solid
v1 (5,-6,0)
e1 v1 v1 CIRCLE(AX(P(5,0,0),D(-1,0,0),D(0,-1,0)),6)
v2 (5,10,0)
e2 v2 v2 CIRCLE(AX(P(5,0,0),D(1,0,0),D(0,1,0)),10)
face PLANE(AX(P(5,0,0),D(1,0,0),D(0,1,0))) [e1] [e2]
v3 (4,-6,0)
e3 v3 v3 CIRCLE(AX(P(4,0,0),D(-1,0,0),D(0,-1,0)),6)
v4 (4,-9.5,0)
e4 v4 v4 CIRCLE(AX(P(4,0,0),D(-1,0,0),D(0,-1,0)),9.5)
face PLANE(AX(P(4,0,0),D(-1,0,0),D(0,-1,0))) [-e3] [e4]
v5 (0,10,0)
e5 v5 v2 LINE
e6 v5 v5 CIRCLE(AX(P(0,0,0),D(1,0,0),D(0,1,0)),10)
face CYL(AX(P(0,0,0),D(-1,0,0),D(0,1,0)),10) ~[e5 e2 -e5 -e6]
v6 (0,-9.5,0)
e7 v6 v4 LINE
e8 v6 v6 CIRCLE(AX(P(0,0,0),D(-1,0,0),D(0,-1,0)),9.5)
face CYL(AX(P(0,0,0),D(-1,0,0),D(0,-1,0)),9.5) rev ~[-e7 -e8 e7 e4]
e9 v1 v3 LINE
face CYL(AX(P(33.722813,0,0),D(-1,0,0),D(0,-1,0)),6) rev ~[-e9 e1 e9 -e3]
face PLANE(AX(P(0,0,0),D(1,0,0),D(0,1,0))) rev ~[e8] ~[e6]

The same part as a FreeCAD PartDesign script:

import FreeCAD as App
import Part
import Sketcher
from FreeCAD import Vector

doc = App.newDocument("Part")
body = doc.addObject("PartDesign::Body", "Body")

# Sketch on YZ plane
sketch1 = body.newObject("Sketcher::SketchObject", "Sketch")
sketch1.AttachmentSupport = (doc.getObject("YZ_Plane"), [""])
sketch1.MapMode = "FlatFace"
sketch1.addGeometry(Part.Circle(Vector(0, 0, 0), Vector(0, 0, 1), 10), False)
sketch1.addConstraint([
    Sketcher.Constraint("Coincident", 0, 3, -1, 1),
    Sketcher.Constraint("Diameter", 0, 20.0),
])
pad1 = body.newObject("PartDesign::Pad", "Pad")
pad1.Profile = sketch1
pad1.Length = 5

# Sketch on YZ plane
sketch2 = body.newObject("Sketcher::SketchObject", "Sketch001")
sketch2.AttachmentSupport = (doc.getObject("YZ_Plane"), [""])
sketch2.MapMode = "FlatFace"
sketch2.addGeometry(Part.Circle(Vector(0, 0, 0), Vector(0, 0, 1), 9.5), False)
sketch2.addConstraint([
    Sketcher.Constraint("Coincident", 0, 3, -1, 1),
    Sketcher.Constraint("Diameter", 0, 19.0),
])
pocket1 = body.newObject("PartDesign::Pocket", "Pocket")
pocket1.Profile = sketch2
pocket1.Length = 4
pocket1.Reversed = True

# Sketch on YZ plane
sketch3 = body.newObject("Sketcher::SketchObject", "Sketch002")
sketch3.AttachmentSupport = (doc.getObject("YZ_Plane"), [""])
sketch3.MapMode = "FlatFace"
sketch3.AttachmentOffset = App.Placement(Vector(0, 0, 5), App.Rotation())
sketch3.addGeometry(Part.Circle(Vector(0, 0, 0), Vector(0, 0, 1), 6), False)
sketch3.addConstraint([
    Sketcher.Constraint("Coincident", 0, 3, -1, 1),
    Sketcher.Constraint("Diameter", 0, 12.0),
])
doc.recompute()
hole = body.newObject("PartDesign::Hole", "Hole")
hole.Profile = sketch3
hole.ThreadType = "None"
hole.Diameter = 12
hole.DepthType = "ThroughAll"

doc.recompute()
